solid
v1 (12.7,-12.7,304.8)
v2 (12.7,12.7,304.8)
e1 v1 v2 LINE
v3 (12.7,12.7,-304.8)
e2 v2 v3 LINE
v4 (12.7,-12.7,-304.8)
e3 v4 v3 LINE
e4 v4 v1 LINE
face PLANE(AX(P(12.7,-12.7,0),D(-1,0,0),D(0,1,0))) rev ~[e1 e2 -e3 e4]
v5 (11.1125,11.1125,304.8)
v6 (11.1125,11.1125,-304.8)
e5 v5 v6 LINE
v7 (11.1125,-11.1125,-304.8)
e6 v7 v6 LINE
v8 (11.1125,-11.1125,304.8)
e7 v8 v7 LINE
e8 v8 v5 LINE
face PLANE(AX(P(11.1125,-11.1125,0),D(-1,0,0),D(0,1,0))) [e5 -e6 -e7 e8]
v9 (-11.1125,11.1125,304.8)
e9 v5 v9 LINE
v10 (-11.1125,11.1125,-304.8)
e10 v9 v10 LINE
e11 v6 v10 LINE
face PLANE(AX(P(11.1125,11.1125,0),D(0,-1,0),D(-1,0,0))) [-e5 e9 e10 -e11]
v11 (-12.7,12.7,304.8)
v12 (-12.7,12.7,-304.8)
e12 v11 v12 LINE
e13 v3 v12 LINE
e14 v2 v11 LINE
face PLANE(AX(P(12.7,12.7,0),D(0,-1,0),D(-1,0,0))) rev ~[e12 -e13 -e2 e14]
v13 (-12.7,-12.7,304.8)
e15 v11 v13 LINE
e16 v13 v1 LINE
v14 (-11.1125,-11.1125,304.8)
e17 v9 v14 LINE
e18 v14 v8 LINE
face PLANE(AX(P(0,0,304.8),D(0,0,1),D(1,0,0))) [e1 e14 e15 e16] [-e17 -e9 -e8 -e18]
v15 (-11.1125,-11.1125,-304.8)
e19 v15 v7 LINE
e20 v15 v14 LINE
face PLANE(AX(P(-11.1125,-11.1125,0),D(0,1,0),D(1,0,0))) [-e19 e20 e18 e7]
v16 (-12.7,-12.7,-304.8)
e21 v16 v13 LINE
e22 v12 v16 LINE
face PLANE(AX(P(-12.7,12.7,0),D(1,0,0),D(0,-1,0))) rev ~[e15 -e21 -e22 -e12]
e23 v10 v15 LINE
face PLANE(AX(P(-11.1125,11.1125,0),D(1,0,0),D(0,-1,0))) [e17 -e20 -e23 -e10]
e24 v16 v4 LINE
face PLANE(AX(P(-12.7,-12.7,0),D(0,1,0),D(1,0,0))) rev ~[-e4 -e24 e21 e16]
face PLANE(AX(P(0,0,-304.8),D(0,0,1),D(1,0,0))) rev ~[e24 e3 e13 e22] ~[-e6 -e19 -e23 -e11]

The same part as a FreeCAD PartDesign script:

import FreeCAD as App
import Part
import Sketcher
from FreeCAD import Vector
Q = App.Units.Quantity


def add_polygon(sketch, points):
    """Adds a closed chain of lines whose ends are joined by coincident constraints."""
    first, n = sketch.GeometryCount, len(points)
    for a, b in zip(points, points[1:] + points[:1]):
        sketch.addGeometry(Part.LineSegment(App.Vector(*a, 0), App.Vector(*b, 0)), False)
    for i in range(n):
        sketch.addConstraint(Sketcher.Constraint("Coincident", first + i, 2, first + (i + 1) % n, 1))

doc = App.newDocument("Part")
body = doc.addObject("PartDesign::Body", "Body")

# Sketch on XY plane
sketch1 = body.newObject("Sketcher::SketchObject", "Sketch")
sketch1.AttachmentSupport = (doc.getObject("XY_Plane"), [""])
sketch1.MapMode = "FlatFace"
add_polygon(sketch1, [(-12.7, 12.7), (-12.7, -12.7), (12.7, -12.7), (12.7, 12.7)])  # lines 0-3
add_polygon(sketch1, [(11.1125, -11.1125), (-11.1125, -11.1125), (-11.1125, 11.1125), (11.1125, 11.1125)])  # lines 4-7
sketch1.addConstraint(Sketcher.Constraint("Vertical", 0))
sketch1.addConstraint(Sketcher.Constraint("Horizontal", 1))
sketch1.addConstraint(Sketcher.Constraint("Vertical", 2))
sketch1.addConstraint(Sketcher.Constraint("Horizontal", 3))
sketch1.addConstraint(Sketcher.Constraint("Horizontal", 4))
sketch1.addConstraint(Sketcher.Constraint("Vertical", 5))
sketch1.addConstraint(Sketcher.Constraint("Horizontal", 6))
sketch1.addConstraint(Sketcher.Constraint("Vertical", 7))
sketch1.addConstraint(Sketcher.Constraint("Symmetric", 0, 2, 2, 2, -1, 1))
sketch1.addConstraint(Sketcher.Constraint("Symmetric", 4, 2, 6, 2, -1, 1))
sketch1.addConstraint(Sketcher.Constraint("Equal", 3, 0))
sketch1.addConstraint(Sketcher.Constraint("Equal", 6, 5))
sketch1.addConstraint(Sketcher.Constraint("DistanceX", 1, 1, 1, 2, Q("1 in")))
sketch1.addConstraint(Sketcher.Constraint("DistanceX", 0, 2, 4, 2, Q("0.0625 in")))
pad1 = body.newObject("PartDesign::Pad", "Pad")
pad1.Profile = sketch1
pad1.Length = Q("24 in")
pad1.Midplane = True

doc.recompute()
